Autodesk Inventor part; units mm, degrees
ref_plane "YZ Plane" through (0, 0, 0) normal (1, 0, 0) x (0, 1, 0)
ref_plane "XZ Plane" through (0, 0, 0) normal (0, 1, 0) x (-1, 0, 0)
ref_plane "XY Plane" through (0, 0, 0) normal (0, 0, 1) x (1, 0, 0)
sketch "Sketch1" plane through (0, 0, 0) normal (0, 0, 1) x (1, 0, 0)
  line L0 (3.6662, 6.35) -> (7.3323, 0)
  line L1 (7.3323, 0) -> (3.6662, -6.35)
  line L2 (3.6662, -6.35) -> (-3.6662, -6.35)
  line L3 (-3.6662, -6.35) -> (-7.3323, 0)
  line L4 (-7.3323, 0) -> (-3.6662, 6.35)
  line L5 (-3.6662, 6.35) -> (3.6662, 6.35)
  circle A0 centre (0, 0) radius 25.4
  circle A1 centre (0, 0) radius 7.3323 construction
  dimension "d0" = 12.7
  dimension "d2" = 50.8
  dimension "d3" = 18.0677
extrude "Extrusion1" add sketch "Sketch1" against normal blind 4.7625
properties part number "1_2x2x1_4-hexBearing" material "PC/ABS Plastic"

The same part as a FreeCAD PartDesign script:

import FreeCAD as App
import Part
import Sketcher
Q = App.Units.Quantity

doc = App.newDocument("Part")
body = doc.addObject("PartDesign::Body", "Body")

# Sketch on XY plane
sketch1 = body.newObject("Sketcher::SketchObject", "Sketch")
sketch1.AttachmentSupport = (doc.getObject("XY_Plane"), [""])
sketch1.MapMode = "FlatFace"
sketch1.addGeometry(Part.Circle(App.Vector(0, 0, 0), App.Vector(0, 0, 1), 25.4), False)
sketch1.addGeometry(Part.LineSegment(App.Vector(-3.6662, 6.35, 0), App.Vector(3.6662, 6.35, 0)), False)
sketch1.addGeometry(Part.LineSegment(App.Vector(3.6662, 6.35, 0), App.Vector(7.3323, 0, 0)), False)
sketch1.addGeometry(Part.LineSegment(App.Vector(7.3323, 0, 0), App.Vector(3.6662, -6.35, 0)), False)
sketch1.addGeometry(Part.LineSegment(App.Vector(3.6662, -6.35, 0), App.Vector(-3.6662, -6.35, 0)), False)
sketch1.addGeometry(Part.LineSegment(App.Vector(-3.6662, -6.35, 0), App.Vector(-7.3323, 0, 0)), False)
sketch1.addGeometry(Part.LineSegment(App.Vector(-7.3323, 0, 0), App.Vector(-3.6662, 6.35, 0)), False)
sketch1.addConstraint(Sketcher.Constraint("Coincident", 1, 2, 2, 1))
sketch1.addConstraint(Sketcher.Constraint("Coincident", 2, 2, 3, 1))
sketch1.addConstraint(Sketcher.Constraint("Coincident", 3, 2, 4, 1))
sketch1.addConstraint(Sketcher.Constraint("Coincident", 4, 2, 5, 1))
sketch1.addConstraint(Sketcher.Constraint("Coincident", 5, 2, 6, 1))
sketch1.addConstraint(Sketcher.Constraint("Coincident", 6, 2, 1, 1))
sketch1.addConstraint(Sketcher.Constraint("Horizontal", 1))
sketch1.addConstraint(Sketcher.Constraint("Horizontal", 4))
sketch1.addConstraint(Sketcher.Constraint("Coincident", 0, 3, -1, 1))
sketch1.addConstraint(Sketcher.Constraint("Symmetric", 1, 2, 4, 2, -1, 1))
sketch1.addConstraint(Sketcher.Constraint("Symmetric", 2, 2, 5, 2, -1, 1))
sketch1.addConstraint(Sketcher.Constraint("PointOnObject", 2, 2, -1))
sketch1.addConstraint(Sketcher.Constraint("Parallel", 3, 6))
sketch1.addConstraint(Sketcher.Constraint("Vertical", 1, 2, 3, 2))
sketch1.addConstraint(Sketcher.Constraint("Diameter", 0, Q("2 in")))
sketch1.addConstraint(Sketcher.Constraint("DistanceY", 3, 2, 1, 2, Q("0.5 in")))
sketch1.addConstraint(Sketcher.Constraint("Angle", 2, Q("-60.0005 deg")))
sketch1.addConstraint(Sketcher.Constraint("DistanceX", 4, 2, 2, 2, Q("0.433 in")))
pad1 = body.newObject("PartDesign::Pad", "Pad")
pad1.Profile = sketch1
pad1.Length = Q("0.1875 in")
pad1.Reversed = True

doc.recompute()
